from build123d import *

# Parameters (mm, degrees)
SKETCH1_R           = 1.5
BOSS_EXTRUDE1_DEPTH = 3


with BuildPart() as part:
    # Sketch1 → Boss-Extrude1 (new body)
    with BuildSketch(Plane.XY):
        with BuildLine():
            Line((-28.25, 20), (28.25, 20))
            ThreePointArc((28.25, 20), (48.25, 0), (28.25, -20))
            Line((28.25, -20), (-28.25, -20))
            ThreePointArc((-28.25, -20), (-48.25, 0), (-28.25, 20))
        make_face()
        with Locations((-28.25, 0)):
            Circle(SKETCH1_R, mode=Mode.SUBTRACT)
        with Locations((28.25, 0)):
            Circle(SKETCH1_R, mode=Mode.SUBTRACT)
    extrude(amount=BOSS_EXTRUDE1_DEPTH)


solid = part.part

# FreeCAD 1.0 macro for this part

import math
import FreeCAD as App
import Part
import Sketcher

V = App.Vector

doc = App.newDocument("Part")
body = doc.addObject("PartDesign::Body", "Body")

# Sketch on XY plane
sketch1 = body.newObject("Sketcher::SketchObject", "Sketch")
sketch1.AttachmentSupport = (doc.getObject("XY_Plane"), [""])
sketch1.MapMode = "FlatFace"
sketch1.addGeometry([
    Part.LineSegment(V(28.2, 20, 0), V(-28.2, 20, 0)),  # 0
    Part.ArcOfCircle(Part.Circle(V(-28.2, 0, 0), V(0, 0, 1), 20), math.radians(90), math.radians(270)),  # 1
    Part.LineSegment(V(-28.2, -20, 0), V(28.2, -20, 0)),  # 2
    Part.ArcOfCircle(Part.Circle(V(28.2, 0, 0), V(0, 0, 1), 20), math.radians(-90), math.radians(90)),  # 3
    Part.Circle(V(28.2, 0, 0), V(0, 0, 1), 1.5),  # 4
    Part.Circle(V(-28.2, 0, 0), V(0, 0, 1), 1.5),  # 5
], False)
sketch1.addConstraint([
    Sketcher.Constraint("Tangent", 0, 2, 1, 1),
    Sketcher.Constraint("Tangent", 1, 2, 2, 1),
    Sketcher.Constraint("Tangent", 2, 2, 3, 1),
    Sketcher.Constraint("Tangent", 3, 2, 0, 1),
    Sketcher.Constraint("Horizontal", 0),
    Sketcher.Constraint("Horizontal", 2),
    Sketcher.Constraint("Coincident", 4, 3, 3, 3),
    Sketcher.Constraint("Coincident", 5, 3, 1, 3),
    Sketcher.Constraint("Equal", 4, 5),
    Sketcher.Constraint("Symmetric", 1, 3, 3, 3, -1, 1),
    Sketcher.Constraint("Diameter", 4, 3.0),
    Sketcher.Constraint("Radius", 1, 20.0),
    Sketcher.Constraint("DistanceX", 0, 2, 0, 1, 56.5),
])
pad1 = body.newObject("PartDesign::Pad", "Pad")
pad1.Profile = sketch1
pad1.Length = 3

doc.recompute()
